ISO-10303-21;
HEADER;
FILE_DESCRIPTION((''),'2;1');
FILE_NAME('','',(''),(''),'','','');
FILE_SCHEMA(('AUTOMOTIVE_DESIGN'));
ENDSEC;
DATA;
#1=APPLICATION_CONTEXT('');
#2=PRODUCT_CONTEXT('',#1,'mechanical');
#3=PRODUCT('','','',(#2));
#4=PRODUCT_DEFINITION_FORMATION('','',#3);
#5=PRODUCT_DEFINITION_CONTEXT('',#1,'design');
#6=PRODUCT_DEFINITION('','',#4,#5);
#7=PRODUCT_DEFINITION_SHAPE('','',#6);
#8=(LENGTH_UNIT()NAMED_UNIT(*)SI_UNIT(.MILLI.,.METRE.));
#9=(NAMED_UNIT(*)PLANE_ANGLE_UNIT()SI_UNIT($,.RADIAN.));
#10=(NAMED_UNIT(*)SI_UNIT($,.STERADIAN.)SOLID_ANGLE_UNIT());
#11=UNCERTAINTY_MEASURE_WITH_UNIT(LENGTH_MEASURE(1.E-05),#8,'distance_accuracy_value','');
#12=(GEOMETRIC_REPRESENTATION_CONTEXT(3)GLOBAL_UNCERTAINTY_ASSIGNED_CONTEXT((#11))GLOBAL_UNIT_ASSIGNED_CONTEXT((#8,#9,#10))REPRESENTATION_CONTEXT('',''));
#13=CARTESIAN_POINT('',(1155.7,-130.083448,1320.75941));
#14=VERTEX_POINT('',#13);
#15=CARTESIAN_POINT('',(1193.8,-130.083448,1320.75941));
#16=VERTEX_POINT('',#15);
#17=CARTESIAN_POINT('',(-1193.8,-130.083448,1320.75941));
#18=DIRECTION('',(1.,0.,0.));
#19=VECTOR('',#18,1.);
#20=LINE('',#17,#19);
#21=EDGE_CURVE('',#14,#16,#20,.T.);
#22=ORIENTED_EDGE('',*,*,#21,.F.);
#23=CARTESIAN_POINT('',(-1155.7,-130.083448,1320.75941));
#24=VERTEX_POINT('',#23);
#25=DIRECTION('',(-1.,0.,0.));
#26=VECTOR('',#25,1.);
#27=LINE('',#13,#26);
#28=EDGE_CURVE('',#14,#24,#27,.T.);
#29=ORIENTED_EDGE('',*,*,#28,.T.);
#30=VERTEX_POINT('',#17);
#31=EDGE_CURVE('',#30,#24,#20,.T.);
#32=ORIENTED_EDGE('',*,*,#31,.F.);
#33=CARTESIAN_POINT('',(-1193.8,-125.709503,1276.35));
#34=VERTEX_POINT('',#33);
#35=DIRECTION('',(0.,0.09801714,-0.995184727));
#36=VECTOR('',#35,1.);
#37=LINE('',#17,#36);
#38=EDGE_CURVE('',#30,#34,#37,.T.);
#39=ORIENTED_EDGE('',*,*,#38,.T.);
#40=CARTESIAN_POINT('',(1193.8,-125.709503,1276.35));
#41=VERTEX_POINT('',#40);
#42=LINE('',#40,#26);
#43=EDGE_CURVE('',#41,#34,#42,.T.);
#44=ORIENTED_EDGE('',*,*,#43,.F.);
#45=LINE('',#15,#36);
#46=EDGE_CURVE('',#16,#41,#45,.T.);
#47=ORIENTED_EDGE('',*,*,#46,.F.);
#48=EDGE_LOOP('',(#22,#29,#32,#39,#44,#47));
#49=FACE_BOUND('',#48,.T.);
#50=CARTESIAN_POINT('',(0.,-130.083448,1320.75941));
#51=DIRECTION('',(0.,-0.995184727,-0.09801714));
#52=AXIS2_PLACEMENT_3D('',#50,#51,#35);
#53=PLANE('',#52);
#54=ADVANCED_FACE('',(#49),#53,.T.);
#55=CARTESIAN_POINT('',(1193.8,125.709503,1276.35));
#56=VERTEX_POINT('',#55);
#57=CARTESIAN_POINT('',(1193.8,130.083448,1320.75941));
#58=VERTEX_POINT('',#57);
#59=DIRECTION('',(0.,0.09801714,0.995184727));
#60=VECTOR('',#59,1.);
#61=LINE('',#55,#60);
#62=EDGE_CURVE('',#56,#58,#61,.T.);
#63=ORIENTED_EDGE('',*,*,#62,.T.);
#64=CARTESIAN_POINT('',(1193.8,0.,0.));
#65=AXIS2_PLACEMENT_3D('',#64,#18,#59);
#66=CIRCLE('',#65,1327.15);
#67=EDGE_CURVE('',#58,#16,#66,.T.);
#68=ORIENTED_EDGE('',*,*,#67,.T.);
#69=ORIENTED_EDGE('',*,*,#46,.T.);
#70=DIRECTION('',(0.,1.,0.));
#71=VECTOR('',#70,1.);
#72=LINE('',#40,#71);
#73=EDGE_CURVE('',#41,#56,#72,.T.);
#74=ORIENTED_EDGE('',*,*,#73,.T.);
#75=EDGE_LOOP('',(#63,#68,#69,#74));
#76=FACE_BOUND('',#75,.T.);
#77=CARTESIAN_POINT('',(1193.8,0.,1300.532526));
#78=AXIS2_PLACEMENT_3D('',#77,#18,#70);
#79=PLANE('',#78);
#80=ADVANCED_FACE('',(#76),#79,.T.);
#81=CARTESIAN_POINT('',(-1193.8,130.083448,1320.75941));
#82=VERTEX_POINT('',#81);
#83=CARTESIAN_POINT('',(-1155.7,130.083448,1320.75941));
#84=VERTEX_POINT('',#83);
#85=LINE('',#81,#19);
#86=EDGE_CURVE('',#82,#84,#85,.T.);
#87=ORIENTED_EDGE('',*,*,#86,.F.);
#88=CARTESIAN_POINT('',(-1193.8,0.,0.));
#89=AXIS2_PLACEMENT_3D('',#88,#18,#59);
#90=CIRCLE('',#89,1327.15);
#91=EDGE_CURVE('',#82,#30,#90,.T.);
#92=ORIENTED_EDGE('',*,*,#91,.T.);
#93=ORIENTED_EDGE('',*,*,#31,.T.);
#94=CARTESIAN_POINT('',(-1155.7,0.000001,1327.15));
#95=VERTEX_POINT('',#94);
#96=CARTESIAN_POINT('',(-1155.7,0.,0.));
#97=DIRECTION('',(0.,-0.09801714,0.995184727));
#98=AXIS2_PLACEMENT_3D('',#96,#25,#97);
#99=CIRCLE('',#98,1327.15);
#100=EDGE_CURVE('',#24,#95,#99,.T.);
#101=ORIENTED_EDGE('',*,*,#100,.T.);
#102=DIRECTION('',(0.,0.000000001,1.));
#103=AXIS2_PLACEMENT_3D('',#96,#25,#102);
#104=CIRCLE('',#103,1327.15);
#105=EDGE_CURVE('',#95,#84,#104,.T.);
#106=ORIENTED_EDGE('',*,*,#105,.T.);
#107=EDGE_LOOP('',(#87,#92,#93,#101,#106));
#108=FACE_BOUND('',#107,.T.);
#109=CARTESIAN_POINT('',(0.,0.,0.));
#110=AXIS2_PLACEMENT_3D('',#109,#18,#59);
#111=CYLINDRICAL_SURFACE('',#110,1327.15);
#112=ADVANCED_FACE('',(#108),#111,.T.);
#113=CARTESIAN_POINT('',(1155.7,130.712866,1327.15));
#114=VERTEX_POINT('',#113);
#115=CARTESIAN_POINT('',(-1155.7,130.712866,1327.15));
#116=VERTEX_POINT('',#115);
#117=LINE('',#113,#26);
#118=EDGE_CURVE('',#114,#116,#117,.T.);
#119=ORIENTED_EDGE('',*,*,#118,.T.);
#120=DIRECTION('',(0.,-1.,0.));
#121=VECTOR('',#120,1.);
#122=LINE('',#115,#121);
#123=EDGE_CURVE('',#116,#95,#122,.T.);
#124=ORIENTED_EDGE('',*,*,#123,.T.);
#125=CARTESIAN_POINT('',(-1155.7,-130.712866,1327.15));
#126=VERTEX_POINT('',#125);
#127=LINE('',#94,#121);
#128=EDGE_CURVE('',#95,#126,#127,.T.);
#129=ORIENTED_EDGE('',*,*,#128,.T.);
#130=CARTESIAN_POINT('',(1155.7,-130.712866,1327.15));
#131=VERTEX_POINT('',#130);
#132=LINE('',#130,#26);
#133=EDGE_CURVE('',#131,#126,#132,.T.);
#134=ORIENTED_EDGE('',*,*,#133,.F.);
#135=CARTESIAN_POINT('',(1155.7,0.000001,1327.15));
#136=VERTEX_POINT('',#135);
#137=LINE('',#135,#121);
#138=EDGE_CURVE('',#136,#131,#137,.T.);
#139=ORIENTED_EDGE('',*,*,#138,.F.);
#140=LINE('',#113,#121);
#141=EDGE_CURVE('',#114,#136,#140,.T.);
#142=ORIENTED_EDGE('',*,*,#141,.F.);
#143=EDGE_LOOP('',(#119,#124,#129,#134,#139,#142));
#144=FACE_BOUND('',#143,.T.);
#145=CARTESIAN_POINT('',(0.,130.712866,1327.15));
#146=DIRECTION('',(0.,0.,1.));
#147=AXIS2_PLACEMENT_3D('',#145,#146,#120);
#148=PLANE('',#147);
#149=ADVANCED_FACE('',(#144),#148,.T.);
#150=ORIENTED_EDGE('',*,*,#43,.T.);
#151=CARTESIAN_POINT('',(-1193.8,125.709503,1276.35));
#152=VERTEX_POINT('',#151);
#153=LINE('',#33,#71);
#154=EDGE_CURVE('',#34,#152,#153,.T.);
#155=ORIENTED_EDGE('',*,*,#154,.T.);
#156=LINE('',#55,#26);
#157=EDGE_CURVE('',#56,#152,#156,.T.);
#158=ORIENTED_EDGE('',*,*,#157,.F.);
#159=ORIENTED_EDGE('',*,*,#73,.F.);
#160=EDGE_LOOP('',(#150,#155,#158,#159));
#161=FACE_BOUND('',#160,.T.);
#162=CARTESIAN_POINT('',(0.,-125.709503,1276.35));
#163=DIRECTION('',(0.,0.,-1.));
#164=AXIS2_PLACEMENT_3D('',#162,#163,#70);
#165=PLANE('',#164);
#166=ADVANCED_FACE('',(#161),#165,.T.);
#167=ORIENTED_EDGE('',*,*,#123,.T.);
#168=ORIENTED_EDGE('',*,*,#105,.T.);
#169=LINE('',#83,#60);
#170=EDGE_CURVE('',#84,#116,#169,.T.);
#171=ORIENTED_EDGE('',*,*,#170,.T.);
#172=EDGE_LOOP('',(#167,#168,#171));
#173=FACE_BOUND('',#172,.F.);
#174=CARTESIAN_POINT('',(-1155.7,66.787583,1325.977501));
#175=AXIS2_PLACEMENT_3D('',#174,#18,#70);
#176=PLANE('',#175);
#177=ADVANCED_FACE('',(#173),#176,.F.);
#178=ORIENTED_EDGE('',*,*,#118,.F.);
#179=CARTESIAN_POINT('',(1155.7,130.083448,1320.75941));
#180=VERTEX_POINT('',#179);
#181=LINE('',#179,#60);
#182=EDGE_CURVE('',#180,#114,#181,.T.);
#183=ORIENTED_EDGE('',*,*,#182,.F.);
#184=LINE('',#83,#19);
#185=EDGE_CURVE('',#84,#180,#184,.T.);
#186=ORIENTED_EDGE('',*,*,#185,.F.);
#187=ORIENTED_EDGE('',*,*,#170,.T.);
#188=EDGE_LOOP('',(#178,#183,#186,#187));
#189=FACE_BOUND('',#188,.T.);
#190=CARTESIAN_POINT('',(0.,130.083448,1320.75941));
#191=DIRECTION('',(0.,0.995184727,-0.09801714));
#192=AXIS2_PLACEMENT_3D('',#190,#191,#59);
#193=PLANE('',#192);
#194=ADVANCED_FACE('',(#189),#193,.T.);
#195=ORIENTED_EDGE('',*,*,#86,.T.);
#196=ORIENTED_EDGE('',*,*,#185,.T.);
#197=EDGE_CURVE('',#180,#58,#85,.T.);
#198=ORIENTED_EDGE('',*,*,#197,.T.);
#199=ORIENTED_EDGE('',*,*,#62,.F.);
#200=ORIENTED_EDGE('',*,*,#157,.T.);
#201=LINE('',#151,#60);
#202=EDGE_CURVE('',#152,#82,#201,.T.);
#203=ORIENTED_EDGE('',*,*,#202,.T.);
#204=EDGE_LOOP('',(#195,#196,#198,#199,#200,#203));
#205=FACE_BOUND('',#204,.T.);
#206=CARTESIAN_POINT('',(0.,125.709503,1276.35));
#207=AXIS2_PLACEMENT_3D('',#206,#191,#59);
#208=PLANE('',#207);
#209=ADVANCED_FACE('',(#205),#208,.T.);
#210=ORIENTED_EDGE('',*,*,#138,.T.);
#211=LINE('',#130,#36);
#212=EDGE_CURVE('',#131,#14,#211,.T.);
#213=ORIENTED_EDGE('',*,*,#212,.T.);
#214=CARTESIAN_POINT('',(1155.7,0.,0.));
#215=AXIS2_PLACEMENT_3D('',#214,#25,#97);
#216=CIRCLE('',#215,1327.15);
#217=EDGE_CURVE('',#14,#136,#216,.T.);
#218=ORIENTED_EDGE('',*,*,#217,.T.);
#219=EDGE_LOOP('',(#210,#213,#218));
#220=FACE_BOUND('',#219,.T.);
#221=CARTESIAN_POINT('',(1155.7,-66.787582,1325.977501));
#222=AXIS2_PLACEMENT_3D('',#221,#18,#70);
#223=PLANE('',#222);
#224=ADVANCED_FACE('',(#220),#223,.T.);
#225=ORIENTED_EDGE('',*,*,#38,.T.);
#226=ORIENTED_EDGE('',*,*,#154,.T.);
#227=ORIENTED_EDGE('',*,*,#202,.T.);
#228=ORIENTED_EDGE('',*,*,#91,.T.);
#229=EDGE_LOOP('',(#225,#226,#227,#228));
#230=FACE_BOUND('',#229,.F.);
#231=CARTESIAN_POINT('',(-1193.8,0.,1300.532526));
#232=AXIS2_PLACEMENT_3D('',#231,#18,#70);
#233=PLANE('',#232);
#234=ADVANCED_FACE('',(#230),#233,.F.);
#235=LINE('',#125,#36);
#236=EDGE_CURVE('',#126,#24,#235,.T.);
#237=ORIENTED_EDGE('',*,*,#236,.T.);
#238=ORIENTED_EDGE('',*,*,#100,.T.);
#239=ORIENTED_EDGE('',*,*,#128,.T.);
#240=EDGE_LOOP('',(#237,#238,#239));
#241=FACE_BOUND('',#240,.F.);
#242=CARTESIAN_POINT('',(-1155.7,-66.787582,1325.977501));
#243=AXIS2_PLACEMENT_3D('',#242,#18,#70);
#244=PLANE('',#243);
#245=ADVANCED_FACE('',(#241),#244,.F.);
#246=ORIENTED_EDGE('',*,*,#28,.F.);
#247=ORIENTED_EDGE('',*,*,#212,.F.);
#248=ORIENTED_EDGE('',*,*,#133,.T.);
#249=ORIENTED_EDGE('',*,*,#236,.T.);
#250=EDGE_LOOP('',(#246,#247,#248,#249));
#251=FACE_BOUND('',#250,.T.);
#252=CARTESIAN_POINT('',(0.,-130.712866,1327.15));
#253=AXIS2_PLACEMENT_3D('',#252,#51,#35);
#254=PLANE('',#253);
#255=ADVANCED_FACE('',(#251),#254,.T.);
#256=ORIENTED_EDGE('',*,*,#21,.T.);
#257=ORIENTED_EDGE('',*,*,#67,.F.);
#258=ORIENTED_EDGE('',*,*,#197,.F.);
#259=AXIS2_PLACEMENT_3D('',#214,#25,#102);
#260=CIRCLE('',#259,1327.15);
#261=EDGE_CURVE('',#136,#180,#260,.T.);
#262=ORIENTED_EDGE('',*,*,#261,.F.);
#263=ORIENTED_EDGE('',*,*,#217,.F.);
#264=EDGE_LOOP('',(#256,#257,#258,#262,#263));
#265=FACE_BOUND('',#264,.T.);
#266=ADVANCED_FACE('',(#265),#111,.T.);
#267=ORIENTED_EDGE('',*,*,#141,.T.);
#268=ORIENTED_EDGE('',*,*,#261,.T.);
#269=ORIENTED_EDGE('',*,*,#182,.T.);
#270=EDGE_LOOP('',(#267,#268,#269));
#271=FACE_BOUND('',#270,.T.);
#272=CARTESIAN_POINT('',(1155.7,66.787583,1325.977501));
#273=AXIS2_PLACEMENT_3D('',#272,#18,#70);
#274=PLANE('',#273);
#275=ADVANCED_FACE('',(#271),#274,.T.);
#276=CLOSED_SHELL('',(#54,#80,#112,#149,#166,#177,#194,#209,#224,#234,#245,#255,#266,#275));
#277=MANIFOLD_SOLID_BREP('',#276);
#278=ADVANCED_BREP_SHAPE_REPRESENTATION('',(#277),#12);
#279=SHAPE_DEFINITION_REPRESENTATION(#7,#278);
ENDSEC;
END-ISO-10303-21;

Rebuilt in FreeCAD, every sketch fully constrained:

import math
import FreeCAD as App
import Part
import Sketcher

V = App.Vector
Q = App.Units.Quantity

doc = App.newDocument("Part")
params = doc.addObject("Spreadsheet::Sheet", "Params")
for row, (alias, value) in enumerate([
    ("sketch1_radius", "52.25 in"),
    ("pad1_length", "94 in"),
    ("sketch2_radius", "52.25 in"),
    ("pad2_length", "91 in"),
], start=1):
    params.set(f"A{row}", alias)
    params.set(f"B{row}", "=" + value)
    params.setAlias(f"B{row}", alias)

body = doc.addObject("PartDesign::Body", "Body")

# Sketch on YZ plane
sketch1 = body.newObject("Sketcher::SketchObject", "Sketch")
sketch1.AttachmentSupport = (doc.getObject("YZ_Plane"), [""])
sketch1.MapMode = "FlatFace"
sketch1.addGeometry(Part.LineSegment(V(125.709503, 1276.35, 0), V(130.083448, 1320.75941, 0)), False)
sketch1.addGeometry(Part.ArcOfCircle(Part.Circle(V(0, 0, 0), V(0, 0, 1), 1327.15), math.radians(84.375), math.radians(95.625)), False)
sketch1.addGeometry(Part.LineSegment(V(-130.083448, 1320.75941, 0), V(-125.709503, 1276.35, 0)), False)
sketch1.addGeometry(Part.LineSegment(V(-125.709503, 1276.35, 0), V(125.709503, 1276.35, 0)), False)
sketch1.addConstraint(Sketcher.Constraint("Coincident", 0, 2, 1, 1))
sketch1.addConstraint(Sketcher.Constraint("Coincident", 1, 2, 2, 1))
sketch1.addConstraint(Sketcher.Constraint("Coincident", 2, 2, 3, 1))
sketch1.addConstraint(Sketcher.Constraint("Coincident", 3, 2, 0, 1))
sketch1.addConstraint(Sketcher.Constraint("Horizontal", 3))
sketch1.addConstraint(Sketcher.Constraint("Coincident", 1, 3, -1, 1))
sketch1.addConstraint(Sketcher.Constraint("Equal", 0, 2))
sketch1.addConstraint(Sketcher.Constraint("Radius", 1, Q("52.25 in")))
sketch1.addConstraint(Sketcher.Constraint("DistanceY", -1, 1, 2, 2, Q("50.25 in")))
sketch1.addConstraint(Sketcher.Constraint("Distance", 0, Q("44.624288 mm")))
sketch1.addConstraint(Sketcher.Constraint("DistanceY", -1, 1, 0, 2, Q("1320.75941 mm")))
sketch1.addConstraint(Sketcher.Constraint("Angle", 2, Q("-84.375 deg")))
sketch1.setExpression("Constraints[7]", "Params.sketch1_radius")
pad1 = body.newObject("PartDesign::Pad", "Pad")
pad1.Profile = sketch1
pad1.setExpression("Length", "Params.pad1_length")
pad1.Midplane = True

# Sketch on YZ plane
sketch2 = body.newObject("Sketcher::SketchObject", "Sketch001")
sketch2.AttachmentSupport = (doc.getObject("YZ_Plane"), [""])
sketch2.MapMode = "FlatFace"
sketch2.addGeometry(Part.LineSegment(V(-130.712866, 1327.15, 0), V(-130.083448, 1320.75941, 0)), False)
sketch2.addGeometry(Part.ArcOfCircle(Part.Circle(V(0, 0, 0), V(0, 0, 1), 1327.15), math.radians(90), math.radians(95.625)), False)
sketch2.addGeometry(Part.LineSegment(V(0.000001, 1327.15, 0), V(-130.712866, 1327.15, 0)), False)
sketch2.addGeometry(Part.ArcOfCircle(Part.Circle(V(0, 0, 0), V(0, 0, 1), 1327.15), math.radians(84.375), math.radians(90)), False)
sketch2.addGeometry(Part.LineSegment(V(130.083448, 1320.75941, 0), V(130.712866, 1327.15, 0)), False)
sketch2.addGeometry(Part.LineSegment(V(130.712866, 1327.15, 0), V(0.000001, 1327.15, 0)), False)
sketch2.addConstraint(Sketcher.Constraint("Coincident", 0, 2, 1, 2))
sketch2.addConstraint(Sketcher.Constraint("Tangent", 1, 1, 2, 1))
sketch2.addConstraint(Sketcher.Constraint("Coincident", 2, 2, 0, 1))
sketch2.addConstraint(Sketcher.Constraint("Coincident", 3, 1, 4, 1))
sketch2.addConstraint(Sketcher.Constraint("Coincident", 4, 2, 5, 1))
sketch2.addConstraint(Sketcher.Constraint("Tangent", 5, 2, 3, 2))
sketch2.addConstraint(Sketcher.Constraint("Horizontal", 2))
sketch2.addConstraint(Sketcher.Constraint("Horizontal", 5))
sketch2.addConstraint(Sketcher.Constraint("Coincident", 1, 3, -1, 1))
sketch2.addConstraint(Sketcher.Constraint("Coincident", 3, 3, -1, 1))
sketch2.addConstraint(Sketcher.Constraint("Equal", 1, 3))
sketch2.addConstraint(Sketcher.Constraint("Equal", 0, 4))
sketch2.addConstraint(Sketcher.Constraint("Radius", 1, Q("52.25 in")))
sketch2.addConstraint(Sketcher.Constraint("Distance", 0, Q("6.421511 mm")))
sketch2.addConstraint(Sketcher.Constraint("DistanceY", -1, 1, 0, 2, Q("1320.75941 mm")))
sketch2.addConstraint(Sketcher.Constraint("Angle", 4, Q("84.375 deg")))
sketch2.setExpression("Constraints[12]", "Params.sketch2_radius")
pad2 = body.newObject("PartDesign::Pad", "Pad001")
pad2.Profile = sketch2
pad2.setExpression("Length", "Params.pad2_length")
pad2.Midplane = True

doc.recompute()
